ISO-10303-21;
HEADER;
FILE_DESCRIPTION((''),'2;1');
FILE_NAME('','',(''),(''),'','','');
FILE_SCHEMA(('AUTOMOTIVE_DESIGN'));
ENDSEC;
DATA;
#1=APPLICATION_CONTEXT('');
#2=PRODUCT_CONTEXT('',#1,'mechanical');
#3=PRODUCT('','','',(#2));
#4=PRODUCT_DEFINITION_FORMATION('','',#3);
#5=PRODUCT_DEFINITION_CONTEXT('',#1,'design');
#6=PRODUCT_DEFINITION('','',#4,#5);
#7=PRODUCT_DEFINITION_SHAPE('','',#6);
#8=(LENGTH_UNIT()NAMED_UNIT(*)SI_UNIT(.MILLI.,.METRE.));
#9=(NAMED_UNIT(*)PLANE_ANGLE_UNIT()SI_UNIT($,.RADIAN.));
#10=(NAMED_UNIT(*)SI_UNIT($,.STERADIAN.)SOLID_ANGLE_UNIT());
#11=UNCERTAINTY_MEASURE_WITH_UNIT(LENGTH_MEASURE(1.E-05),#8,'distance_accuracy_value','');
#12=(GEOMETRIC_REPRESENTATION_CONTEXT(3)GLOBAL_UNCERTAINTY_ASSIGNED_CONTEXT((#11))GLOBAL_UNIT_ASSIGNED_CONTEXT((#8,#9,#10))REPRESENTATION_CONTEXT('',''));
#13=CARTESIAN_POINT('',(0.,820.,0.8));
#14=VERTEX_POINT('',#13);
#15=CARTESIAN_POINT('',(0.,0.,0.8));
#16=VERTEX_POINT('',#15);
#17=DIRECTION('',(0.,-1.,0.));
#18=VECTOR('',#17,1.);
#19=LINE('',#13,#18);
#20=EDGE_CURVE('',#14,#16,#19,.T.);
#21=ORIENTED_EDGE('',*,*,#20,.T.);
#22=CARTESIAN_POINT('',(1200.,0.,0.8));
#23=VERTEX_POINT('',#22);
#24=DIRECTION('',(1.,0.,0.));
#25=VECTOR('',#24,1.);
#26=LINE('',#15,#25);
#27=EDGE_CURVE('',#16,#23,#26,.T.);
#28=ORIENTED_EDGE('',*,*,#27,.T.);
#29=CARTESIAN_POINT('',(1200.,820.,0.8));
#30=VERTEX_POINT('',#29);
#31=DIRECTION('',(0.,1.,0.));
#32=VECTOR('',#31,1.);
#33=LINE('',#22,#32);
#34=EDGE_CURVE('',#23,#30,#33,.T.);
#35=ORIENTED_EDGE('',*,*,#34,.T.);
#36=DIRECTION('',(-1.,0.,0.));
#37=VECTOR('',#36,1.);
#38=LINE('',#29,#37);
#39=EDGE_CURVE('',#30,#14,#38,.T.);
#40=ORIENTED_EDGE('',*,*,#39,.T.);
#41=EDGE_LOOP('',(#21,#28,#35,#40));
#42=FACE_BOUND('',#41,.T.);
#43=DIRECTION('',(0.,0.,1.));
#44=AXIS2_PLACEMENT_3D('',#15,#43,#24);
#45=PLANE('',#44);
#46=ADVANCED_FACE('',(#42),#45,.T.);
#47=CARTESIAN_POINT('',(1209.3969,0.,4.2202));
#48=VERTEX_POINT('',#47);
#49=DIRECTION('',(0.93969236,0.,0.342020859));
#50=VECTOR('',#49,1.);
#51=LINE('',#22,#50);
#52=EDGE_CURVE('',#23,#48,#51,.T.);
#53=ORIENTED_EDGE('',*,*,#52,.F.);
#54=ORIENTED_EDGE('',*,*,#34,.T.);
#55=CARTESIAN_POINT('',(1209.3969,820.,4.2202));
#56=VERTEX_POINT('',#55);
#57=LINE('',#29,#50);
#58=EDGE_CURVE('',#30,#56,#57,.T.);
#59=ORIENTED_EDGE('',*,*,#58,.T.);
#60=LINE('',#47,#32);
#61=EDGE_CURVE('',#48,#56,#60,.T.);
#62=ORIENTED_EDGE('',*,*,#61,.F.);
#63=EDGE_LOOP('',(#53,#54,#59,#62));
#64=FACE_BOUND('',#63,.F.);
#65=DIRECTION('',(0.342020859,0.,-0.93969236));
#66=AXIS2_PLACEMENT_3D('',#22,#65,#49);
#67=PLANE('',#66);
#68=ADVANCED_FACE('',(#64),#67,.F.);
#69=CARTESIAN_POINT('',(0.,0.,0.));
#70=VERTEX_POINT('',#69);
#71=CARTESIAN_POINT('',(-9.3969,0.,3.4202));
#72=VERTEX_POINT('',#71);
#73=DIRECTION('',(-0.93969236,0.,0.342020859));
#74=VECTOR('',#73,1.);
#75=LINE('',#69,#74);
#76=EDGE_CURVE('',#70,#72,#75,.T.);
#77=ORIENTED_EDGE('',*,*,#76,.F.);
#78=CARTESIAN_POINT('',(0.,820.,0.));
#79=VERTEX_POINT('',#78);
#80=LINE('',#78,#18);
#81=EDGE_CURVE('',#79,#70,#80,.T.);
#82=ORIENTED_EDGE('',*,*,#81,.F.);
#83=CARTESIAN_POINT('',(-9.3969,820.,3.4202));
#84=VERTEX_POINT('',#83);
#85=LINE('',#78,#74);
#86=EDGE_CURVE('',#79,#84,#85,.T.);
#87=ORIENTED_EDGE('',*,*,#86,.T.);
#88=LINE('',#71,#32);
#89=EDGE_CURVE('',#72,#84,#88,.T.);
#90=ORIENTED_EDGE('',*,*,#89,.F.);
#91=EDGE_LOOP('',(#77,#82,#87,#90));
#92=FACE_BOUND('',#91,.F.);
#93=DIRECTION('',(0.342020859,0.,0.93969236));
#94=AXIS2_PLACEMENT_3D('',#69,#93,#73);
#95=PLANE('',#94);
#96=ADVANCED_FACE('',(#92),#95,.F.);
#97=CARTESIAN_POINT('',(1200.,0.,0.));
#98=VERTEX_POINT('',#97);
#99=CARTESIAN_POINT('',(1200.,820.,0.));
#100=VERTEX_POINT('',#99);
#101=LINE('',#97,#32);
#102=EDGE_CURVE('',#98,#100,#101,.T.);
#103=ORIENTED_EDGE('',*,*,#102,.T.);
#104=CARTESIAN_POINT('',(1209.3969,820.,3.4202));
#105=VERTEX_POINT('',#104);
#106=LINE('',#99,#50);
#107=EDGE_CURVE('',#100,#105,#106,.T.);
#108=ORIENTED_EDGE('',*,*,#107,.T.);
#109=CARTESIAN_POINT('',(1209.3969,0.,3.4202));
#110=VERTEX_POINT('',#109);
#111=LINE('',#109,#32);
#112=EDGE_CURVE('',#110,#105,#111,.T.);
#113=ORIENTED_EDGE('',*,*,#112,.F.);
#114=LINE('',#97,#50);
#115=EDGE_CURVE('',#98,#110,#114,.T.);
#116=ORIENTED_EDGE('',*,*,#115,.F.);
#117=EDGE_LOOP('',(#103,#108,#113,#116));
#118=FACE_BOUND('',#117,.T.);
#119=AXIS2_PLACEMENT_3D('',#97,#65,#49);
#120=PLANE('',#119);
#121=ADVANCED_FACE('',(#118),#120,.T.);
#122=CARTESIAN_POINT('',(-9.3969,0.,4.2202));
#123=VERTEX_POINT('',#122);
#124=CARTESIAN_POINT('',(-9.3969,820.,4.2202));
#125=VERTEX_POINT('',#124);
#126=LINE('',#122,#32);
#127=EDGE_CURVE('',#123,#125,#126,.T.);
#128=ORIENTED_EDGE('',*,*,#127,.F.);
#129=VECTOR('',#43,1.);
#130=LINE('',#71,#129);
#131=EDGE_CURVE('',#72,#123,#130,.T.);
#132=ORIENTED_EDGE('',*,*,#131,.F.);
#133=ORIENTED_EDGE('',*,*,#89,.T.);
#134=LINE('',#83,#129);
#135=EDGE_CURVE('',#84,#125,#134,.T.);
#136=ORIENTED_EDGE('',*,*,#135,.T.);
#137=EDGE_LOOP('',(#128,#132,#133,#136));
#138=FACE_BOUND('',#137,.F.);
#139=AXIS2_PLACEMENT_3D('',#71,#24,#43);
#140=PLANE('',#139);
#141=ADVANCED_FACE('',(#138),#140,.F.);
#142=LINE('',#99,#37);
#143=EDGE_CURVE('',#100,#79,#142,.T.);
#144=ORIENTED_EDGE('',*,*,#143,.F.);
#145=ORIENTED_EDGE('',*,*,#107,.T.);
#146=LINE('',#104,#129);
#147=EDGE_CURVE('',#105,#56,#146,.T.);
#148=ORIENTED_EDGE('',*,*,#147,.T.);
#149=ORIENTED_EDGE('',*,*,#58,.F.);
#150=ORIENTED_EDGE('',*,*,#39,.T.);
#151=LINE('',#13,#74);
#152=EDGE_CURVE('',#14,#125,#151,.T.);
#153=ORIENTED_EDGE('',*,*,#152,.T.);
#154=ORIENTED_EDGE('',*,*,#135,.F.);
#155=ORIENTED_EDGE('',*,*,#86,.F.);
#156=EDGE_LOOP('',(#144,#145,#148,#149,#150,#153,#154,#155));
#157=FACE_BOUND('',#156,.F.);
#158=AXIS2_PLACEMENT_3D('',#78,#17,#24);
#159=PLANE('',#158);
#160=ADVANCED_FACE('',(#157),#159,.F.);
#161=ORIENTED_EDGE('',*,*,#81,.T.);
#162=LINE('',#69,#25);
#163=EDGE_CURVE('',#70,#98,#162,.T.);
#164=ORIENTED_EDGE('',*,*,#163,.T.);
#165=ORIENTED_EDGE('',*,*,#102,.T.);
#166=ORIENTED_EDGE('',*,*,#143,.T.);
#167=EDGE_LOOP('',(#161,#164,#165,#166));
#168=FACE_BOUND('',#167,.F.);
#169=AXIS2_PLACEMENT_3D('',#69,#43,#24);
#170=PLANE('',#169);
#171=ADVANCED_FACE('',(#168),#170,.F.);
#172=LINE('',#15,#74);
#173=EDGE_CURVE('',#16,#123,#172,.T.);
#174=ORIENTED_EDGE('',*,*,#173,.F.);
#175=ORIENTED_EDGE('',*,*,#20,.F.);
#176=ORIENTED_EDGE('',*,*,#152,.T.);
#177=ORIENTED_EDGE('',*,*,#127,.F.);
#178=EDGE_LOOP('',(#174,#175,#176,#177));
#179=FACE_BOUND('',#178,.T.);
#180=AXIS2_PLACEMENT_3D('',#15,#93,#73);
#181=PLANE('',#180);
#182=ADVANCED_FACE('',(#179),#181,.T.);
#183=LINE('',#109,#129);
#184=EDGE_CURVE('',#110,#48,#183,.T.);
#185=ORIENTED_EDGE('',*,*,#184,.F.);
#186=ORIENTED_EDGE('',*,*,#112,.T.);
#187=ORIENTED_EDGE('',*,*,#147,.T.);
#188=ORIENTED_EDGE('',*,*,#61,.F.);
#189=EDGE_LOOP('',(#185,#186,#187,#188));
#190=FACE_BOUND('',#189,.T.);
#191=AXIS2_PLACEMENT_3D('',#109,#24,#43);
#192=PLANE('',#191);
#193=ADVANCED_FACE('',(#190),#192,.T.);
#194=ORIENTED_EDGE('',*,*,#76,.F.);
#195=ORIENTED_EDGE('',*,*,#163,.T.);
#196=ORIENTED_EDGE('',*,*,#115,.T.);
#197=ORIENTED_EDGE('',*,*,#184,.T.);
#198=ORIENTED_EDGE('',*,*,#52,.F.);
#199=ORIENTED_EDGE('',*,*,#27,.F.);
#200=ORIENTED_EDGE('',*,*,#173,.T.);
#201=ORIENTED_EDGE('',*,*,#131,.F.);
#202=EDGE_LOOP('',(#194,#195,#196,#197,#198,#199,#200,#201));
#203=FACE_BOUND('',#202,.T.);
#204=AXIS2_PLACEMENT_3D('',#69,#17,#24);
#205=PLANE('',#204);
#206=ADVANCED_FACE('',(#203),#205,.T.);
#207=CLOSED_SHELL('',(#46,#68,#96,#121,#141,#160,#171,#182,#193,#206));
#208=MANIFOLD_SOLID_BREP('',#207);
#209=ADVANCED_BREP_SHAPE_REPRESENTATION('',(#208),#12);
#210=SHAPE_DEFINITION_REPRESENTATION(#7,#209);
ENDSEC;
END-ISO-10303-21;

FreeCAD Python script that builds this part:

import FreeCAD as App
import Part
import Sketcher

V = App.Vector
Q = App.Units.Quantity


def add_polygon(sketch, points):
    """Adds a closed chain of lines whose ends are joined by coincident constraints."""
    first, n = sketch.GeometryCount, len(points)
    for a, b in zip(points, points[1:] + points[:1]):
        sketch.addGeometry(Part.LineSegment(App.Vector(*a, 0), App.Vector(*b, 0)), False)
    for i in range(n):
        sketch.addConstraint(Sketcher.Constraint("Coincident", first + i, 2, first + (i + 1) % n, 1))

doc = App.newDocument("Part")
body = doc.addObject("PartDesign::Body", "Body")

# Sketch on XY plane
sketch1 = body.newObject("Sketcher::SketchObject", "Sketch")
sketch1.AttachmentSupport = (doc.getObject("XY_Plane"), [""])
sketch1.MapMode = "FlatFace"
add_polygon(sketch1, [(0, 820), (0, 0), (1200, 0), (1200, 820)])  # lines 0-3
sketch1.addConstraint([
    Sketcher.Constraint("Vertical", 0),
    Sketcher.Constraint("Horizontal", 1),
    Sketcher.Constraint("Vertical", 2),
    Sketcher.Constraint("Horizontal", 3),
    Sketcher.Constraint("Coincident", 0, 2, -1, 1),
    Sketcher.Constraint("DistanceX", 1, 1, 1, 2, 1200.0),
    Sketcher.Constraint("DistanceY", 0, 2, 0, 1, 820.0),
])
pad1 = body.newObject("PartDesign::Pad", "Pad")
pad1.Profile = sketch1
pad1.Length = 0.8

# Sketch on XZ plane
sketch2 = body.newObject("Sketcher::SketchObject", "Sketch001")
sketch2.AttachmentSupport = (doc.getObject("XZ_Plane"), [""])
sketch2.MapMode = "FlatFace"
add_polygon(sketch2, [(-9.4, 3.4), (0, 0), (0, 0.8), (-9.4, 4.2)])  # lines 0-3
sketch2.addConstraint([
    Sketcher.Constraint("Vertical", 1),
    Sketcher.Constraint("Vertical", 3),
    Sketcher.Constraint("Coincident", 0, 2, -1, 1),
    Sketcher.Constraint("Parallel", 0, 2),
    Sketcher.Constraint("Distance", 0, 10.0),
    Sketcher.Constraint("Angle", 0, Q("-20 deg")),
    Sketcher.Constraint("DistanceY", 1, 1, 1, 2, 0.8),
])
pad2 = body.newObject("PartDesign::Pad", "Pad001")
pad2.Profile = sketch2
pad2.Length = 820
pad2.Reversed = True

# Sketch on XZ plane
sketch3 = body.newObject("Sketcher::SketchObject", "Sketch002")
sketch3.AttachmentSupport = (doc.getObject("XZ_Plane"), [""])
sketch3.MapMode = "FlatFace"
add_polygon(sketch3, [(1200, 0.8), (1200, 0), (1209.4, 3.4), (1209.4, 4.2)])  # lines 0-3
sketch3.addConstraint([
    Sketcher.Constraint("Vertical", 0),
    Sketcher.Constraint("Vertical", 2),
    Sketcher.Constraint("PointOnObject", 0, 2, -1),
    Sketcher.Constraint("Parallel", 1, 3),
    Sketcher.Constraint("Distance", 1, 10.0),
    Sketcher.Constraint("Angle", 1, Q("20 deg")),
    Sketcher.Constraint("DistanceY", 0, 2, 0, 1, 0.8),
    Sketcher.Constraint("DistanceX", -1, 1, 0, 2, 1200.0),
])
pad3 = body.newObject("PartDesign::Pad", "Pad002")
pad3.Profile = sketch3
pad3.Length = 820
pad3.Reversed = True

# Sketch on XY plane
sketch4 = body.newObject("Sketcher::SketchObject", "Sketch003")
sketch4.AttachmentSupport = (doc.getObject("XY_Plane"), [""])
sketch4.MapMode = "FlatFace"
sketch4.AttachmentOffset = App.Placement(V(0, 0, 0.8), App.Rotation())
sketch4.addGeometry([
    Part.Circle(V(57, 837, 0), V(0, 0, 1), 8),
    Part.Circle(V(1127, 837, 0), V(0, 0, 1), 8),
], False)
sketch4.addConstraint([
    Sketcher.Constraint("Equal", 0, 1),
    Sketcher.Constraint("Horizontal", 0, 3, 1, 3),
    Sketcher.Constraint("Diameter", 0, 15.0),
    Sketcher.Constraint("DistanceY", -1, 1, 0, 3, 837.5),
    Sketcher.Constraint("DistanceX", 0, 3, 1, 3, 1070.004),
    Sketcher.Constraint("DistanceX", -1, 1, 0, 3, 56.6674),
])
pocket1 = body.newObject("PartDesign::Pocket", "Pocket")
pocket1.Profile = sketch4
pocket1.Length = 10
doc.recompute()

datumplane = body.newObject("PartDesign::Plane", "DatumPlane")
datumplane.AttachmentSupport = (doc.getObject("XZ_Plane"), [""])
datumplane.MapMode = "FlatFace"
datumplane.AttachmentOffset = App.Placement(V(0, 0, -410), App.Rotation())
mirrored = body.newObject("PartDesign::Mirrored", "Mirrored")
mirrored.Originals = [pocket1]
mirrored.MirrorPlane = (datumplane, [""])
body.Tip = mirrored

doc.recompute()
